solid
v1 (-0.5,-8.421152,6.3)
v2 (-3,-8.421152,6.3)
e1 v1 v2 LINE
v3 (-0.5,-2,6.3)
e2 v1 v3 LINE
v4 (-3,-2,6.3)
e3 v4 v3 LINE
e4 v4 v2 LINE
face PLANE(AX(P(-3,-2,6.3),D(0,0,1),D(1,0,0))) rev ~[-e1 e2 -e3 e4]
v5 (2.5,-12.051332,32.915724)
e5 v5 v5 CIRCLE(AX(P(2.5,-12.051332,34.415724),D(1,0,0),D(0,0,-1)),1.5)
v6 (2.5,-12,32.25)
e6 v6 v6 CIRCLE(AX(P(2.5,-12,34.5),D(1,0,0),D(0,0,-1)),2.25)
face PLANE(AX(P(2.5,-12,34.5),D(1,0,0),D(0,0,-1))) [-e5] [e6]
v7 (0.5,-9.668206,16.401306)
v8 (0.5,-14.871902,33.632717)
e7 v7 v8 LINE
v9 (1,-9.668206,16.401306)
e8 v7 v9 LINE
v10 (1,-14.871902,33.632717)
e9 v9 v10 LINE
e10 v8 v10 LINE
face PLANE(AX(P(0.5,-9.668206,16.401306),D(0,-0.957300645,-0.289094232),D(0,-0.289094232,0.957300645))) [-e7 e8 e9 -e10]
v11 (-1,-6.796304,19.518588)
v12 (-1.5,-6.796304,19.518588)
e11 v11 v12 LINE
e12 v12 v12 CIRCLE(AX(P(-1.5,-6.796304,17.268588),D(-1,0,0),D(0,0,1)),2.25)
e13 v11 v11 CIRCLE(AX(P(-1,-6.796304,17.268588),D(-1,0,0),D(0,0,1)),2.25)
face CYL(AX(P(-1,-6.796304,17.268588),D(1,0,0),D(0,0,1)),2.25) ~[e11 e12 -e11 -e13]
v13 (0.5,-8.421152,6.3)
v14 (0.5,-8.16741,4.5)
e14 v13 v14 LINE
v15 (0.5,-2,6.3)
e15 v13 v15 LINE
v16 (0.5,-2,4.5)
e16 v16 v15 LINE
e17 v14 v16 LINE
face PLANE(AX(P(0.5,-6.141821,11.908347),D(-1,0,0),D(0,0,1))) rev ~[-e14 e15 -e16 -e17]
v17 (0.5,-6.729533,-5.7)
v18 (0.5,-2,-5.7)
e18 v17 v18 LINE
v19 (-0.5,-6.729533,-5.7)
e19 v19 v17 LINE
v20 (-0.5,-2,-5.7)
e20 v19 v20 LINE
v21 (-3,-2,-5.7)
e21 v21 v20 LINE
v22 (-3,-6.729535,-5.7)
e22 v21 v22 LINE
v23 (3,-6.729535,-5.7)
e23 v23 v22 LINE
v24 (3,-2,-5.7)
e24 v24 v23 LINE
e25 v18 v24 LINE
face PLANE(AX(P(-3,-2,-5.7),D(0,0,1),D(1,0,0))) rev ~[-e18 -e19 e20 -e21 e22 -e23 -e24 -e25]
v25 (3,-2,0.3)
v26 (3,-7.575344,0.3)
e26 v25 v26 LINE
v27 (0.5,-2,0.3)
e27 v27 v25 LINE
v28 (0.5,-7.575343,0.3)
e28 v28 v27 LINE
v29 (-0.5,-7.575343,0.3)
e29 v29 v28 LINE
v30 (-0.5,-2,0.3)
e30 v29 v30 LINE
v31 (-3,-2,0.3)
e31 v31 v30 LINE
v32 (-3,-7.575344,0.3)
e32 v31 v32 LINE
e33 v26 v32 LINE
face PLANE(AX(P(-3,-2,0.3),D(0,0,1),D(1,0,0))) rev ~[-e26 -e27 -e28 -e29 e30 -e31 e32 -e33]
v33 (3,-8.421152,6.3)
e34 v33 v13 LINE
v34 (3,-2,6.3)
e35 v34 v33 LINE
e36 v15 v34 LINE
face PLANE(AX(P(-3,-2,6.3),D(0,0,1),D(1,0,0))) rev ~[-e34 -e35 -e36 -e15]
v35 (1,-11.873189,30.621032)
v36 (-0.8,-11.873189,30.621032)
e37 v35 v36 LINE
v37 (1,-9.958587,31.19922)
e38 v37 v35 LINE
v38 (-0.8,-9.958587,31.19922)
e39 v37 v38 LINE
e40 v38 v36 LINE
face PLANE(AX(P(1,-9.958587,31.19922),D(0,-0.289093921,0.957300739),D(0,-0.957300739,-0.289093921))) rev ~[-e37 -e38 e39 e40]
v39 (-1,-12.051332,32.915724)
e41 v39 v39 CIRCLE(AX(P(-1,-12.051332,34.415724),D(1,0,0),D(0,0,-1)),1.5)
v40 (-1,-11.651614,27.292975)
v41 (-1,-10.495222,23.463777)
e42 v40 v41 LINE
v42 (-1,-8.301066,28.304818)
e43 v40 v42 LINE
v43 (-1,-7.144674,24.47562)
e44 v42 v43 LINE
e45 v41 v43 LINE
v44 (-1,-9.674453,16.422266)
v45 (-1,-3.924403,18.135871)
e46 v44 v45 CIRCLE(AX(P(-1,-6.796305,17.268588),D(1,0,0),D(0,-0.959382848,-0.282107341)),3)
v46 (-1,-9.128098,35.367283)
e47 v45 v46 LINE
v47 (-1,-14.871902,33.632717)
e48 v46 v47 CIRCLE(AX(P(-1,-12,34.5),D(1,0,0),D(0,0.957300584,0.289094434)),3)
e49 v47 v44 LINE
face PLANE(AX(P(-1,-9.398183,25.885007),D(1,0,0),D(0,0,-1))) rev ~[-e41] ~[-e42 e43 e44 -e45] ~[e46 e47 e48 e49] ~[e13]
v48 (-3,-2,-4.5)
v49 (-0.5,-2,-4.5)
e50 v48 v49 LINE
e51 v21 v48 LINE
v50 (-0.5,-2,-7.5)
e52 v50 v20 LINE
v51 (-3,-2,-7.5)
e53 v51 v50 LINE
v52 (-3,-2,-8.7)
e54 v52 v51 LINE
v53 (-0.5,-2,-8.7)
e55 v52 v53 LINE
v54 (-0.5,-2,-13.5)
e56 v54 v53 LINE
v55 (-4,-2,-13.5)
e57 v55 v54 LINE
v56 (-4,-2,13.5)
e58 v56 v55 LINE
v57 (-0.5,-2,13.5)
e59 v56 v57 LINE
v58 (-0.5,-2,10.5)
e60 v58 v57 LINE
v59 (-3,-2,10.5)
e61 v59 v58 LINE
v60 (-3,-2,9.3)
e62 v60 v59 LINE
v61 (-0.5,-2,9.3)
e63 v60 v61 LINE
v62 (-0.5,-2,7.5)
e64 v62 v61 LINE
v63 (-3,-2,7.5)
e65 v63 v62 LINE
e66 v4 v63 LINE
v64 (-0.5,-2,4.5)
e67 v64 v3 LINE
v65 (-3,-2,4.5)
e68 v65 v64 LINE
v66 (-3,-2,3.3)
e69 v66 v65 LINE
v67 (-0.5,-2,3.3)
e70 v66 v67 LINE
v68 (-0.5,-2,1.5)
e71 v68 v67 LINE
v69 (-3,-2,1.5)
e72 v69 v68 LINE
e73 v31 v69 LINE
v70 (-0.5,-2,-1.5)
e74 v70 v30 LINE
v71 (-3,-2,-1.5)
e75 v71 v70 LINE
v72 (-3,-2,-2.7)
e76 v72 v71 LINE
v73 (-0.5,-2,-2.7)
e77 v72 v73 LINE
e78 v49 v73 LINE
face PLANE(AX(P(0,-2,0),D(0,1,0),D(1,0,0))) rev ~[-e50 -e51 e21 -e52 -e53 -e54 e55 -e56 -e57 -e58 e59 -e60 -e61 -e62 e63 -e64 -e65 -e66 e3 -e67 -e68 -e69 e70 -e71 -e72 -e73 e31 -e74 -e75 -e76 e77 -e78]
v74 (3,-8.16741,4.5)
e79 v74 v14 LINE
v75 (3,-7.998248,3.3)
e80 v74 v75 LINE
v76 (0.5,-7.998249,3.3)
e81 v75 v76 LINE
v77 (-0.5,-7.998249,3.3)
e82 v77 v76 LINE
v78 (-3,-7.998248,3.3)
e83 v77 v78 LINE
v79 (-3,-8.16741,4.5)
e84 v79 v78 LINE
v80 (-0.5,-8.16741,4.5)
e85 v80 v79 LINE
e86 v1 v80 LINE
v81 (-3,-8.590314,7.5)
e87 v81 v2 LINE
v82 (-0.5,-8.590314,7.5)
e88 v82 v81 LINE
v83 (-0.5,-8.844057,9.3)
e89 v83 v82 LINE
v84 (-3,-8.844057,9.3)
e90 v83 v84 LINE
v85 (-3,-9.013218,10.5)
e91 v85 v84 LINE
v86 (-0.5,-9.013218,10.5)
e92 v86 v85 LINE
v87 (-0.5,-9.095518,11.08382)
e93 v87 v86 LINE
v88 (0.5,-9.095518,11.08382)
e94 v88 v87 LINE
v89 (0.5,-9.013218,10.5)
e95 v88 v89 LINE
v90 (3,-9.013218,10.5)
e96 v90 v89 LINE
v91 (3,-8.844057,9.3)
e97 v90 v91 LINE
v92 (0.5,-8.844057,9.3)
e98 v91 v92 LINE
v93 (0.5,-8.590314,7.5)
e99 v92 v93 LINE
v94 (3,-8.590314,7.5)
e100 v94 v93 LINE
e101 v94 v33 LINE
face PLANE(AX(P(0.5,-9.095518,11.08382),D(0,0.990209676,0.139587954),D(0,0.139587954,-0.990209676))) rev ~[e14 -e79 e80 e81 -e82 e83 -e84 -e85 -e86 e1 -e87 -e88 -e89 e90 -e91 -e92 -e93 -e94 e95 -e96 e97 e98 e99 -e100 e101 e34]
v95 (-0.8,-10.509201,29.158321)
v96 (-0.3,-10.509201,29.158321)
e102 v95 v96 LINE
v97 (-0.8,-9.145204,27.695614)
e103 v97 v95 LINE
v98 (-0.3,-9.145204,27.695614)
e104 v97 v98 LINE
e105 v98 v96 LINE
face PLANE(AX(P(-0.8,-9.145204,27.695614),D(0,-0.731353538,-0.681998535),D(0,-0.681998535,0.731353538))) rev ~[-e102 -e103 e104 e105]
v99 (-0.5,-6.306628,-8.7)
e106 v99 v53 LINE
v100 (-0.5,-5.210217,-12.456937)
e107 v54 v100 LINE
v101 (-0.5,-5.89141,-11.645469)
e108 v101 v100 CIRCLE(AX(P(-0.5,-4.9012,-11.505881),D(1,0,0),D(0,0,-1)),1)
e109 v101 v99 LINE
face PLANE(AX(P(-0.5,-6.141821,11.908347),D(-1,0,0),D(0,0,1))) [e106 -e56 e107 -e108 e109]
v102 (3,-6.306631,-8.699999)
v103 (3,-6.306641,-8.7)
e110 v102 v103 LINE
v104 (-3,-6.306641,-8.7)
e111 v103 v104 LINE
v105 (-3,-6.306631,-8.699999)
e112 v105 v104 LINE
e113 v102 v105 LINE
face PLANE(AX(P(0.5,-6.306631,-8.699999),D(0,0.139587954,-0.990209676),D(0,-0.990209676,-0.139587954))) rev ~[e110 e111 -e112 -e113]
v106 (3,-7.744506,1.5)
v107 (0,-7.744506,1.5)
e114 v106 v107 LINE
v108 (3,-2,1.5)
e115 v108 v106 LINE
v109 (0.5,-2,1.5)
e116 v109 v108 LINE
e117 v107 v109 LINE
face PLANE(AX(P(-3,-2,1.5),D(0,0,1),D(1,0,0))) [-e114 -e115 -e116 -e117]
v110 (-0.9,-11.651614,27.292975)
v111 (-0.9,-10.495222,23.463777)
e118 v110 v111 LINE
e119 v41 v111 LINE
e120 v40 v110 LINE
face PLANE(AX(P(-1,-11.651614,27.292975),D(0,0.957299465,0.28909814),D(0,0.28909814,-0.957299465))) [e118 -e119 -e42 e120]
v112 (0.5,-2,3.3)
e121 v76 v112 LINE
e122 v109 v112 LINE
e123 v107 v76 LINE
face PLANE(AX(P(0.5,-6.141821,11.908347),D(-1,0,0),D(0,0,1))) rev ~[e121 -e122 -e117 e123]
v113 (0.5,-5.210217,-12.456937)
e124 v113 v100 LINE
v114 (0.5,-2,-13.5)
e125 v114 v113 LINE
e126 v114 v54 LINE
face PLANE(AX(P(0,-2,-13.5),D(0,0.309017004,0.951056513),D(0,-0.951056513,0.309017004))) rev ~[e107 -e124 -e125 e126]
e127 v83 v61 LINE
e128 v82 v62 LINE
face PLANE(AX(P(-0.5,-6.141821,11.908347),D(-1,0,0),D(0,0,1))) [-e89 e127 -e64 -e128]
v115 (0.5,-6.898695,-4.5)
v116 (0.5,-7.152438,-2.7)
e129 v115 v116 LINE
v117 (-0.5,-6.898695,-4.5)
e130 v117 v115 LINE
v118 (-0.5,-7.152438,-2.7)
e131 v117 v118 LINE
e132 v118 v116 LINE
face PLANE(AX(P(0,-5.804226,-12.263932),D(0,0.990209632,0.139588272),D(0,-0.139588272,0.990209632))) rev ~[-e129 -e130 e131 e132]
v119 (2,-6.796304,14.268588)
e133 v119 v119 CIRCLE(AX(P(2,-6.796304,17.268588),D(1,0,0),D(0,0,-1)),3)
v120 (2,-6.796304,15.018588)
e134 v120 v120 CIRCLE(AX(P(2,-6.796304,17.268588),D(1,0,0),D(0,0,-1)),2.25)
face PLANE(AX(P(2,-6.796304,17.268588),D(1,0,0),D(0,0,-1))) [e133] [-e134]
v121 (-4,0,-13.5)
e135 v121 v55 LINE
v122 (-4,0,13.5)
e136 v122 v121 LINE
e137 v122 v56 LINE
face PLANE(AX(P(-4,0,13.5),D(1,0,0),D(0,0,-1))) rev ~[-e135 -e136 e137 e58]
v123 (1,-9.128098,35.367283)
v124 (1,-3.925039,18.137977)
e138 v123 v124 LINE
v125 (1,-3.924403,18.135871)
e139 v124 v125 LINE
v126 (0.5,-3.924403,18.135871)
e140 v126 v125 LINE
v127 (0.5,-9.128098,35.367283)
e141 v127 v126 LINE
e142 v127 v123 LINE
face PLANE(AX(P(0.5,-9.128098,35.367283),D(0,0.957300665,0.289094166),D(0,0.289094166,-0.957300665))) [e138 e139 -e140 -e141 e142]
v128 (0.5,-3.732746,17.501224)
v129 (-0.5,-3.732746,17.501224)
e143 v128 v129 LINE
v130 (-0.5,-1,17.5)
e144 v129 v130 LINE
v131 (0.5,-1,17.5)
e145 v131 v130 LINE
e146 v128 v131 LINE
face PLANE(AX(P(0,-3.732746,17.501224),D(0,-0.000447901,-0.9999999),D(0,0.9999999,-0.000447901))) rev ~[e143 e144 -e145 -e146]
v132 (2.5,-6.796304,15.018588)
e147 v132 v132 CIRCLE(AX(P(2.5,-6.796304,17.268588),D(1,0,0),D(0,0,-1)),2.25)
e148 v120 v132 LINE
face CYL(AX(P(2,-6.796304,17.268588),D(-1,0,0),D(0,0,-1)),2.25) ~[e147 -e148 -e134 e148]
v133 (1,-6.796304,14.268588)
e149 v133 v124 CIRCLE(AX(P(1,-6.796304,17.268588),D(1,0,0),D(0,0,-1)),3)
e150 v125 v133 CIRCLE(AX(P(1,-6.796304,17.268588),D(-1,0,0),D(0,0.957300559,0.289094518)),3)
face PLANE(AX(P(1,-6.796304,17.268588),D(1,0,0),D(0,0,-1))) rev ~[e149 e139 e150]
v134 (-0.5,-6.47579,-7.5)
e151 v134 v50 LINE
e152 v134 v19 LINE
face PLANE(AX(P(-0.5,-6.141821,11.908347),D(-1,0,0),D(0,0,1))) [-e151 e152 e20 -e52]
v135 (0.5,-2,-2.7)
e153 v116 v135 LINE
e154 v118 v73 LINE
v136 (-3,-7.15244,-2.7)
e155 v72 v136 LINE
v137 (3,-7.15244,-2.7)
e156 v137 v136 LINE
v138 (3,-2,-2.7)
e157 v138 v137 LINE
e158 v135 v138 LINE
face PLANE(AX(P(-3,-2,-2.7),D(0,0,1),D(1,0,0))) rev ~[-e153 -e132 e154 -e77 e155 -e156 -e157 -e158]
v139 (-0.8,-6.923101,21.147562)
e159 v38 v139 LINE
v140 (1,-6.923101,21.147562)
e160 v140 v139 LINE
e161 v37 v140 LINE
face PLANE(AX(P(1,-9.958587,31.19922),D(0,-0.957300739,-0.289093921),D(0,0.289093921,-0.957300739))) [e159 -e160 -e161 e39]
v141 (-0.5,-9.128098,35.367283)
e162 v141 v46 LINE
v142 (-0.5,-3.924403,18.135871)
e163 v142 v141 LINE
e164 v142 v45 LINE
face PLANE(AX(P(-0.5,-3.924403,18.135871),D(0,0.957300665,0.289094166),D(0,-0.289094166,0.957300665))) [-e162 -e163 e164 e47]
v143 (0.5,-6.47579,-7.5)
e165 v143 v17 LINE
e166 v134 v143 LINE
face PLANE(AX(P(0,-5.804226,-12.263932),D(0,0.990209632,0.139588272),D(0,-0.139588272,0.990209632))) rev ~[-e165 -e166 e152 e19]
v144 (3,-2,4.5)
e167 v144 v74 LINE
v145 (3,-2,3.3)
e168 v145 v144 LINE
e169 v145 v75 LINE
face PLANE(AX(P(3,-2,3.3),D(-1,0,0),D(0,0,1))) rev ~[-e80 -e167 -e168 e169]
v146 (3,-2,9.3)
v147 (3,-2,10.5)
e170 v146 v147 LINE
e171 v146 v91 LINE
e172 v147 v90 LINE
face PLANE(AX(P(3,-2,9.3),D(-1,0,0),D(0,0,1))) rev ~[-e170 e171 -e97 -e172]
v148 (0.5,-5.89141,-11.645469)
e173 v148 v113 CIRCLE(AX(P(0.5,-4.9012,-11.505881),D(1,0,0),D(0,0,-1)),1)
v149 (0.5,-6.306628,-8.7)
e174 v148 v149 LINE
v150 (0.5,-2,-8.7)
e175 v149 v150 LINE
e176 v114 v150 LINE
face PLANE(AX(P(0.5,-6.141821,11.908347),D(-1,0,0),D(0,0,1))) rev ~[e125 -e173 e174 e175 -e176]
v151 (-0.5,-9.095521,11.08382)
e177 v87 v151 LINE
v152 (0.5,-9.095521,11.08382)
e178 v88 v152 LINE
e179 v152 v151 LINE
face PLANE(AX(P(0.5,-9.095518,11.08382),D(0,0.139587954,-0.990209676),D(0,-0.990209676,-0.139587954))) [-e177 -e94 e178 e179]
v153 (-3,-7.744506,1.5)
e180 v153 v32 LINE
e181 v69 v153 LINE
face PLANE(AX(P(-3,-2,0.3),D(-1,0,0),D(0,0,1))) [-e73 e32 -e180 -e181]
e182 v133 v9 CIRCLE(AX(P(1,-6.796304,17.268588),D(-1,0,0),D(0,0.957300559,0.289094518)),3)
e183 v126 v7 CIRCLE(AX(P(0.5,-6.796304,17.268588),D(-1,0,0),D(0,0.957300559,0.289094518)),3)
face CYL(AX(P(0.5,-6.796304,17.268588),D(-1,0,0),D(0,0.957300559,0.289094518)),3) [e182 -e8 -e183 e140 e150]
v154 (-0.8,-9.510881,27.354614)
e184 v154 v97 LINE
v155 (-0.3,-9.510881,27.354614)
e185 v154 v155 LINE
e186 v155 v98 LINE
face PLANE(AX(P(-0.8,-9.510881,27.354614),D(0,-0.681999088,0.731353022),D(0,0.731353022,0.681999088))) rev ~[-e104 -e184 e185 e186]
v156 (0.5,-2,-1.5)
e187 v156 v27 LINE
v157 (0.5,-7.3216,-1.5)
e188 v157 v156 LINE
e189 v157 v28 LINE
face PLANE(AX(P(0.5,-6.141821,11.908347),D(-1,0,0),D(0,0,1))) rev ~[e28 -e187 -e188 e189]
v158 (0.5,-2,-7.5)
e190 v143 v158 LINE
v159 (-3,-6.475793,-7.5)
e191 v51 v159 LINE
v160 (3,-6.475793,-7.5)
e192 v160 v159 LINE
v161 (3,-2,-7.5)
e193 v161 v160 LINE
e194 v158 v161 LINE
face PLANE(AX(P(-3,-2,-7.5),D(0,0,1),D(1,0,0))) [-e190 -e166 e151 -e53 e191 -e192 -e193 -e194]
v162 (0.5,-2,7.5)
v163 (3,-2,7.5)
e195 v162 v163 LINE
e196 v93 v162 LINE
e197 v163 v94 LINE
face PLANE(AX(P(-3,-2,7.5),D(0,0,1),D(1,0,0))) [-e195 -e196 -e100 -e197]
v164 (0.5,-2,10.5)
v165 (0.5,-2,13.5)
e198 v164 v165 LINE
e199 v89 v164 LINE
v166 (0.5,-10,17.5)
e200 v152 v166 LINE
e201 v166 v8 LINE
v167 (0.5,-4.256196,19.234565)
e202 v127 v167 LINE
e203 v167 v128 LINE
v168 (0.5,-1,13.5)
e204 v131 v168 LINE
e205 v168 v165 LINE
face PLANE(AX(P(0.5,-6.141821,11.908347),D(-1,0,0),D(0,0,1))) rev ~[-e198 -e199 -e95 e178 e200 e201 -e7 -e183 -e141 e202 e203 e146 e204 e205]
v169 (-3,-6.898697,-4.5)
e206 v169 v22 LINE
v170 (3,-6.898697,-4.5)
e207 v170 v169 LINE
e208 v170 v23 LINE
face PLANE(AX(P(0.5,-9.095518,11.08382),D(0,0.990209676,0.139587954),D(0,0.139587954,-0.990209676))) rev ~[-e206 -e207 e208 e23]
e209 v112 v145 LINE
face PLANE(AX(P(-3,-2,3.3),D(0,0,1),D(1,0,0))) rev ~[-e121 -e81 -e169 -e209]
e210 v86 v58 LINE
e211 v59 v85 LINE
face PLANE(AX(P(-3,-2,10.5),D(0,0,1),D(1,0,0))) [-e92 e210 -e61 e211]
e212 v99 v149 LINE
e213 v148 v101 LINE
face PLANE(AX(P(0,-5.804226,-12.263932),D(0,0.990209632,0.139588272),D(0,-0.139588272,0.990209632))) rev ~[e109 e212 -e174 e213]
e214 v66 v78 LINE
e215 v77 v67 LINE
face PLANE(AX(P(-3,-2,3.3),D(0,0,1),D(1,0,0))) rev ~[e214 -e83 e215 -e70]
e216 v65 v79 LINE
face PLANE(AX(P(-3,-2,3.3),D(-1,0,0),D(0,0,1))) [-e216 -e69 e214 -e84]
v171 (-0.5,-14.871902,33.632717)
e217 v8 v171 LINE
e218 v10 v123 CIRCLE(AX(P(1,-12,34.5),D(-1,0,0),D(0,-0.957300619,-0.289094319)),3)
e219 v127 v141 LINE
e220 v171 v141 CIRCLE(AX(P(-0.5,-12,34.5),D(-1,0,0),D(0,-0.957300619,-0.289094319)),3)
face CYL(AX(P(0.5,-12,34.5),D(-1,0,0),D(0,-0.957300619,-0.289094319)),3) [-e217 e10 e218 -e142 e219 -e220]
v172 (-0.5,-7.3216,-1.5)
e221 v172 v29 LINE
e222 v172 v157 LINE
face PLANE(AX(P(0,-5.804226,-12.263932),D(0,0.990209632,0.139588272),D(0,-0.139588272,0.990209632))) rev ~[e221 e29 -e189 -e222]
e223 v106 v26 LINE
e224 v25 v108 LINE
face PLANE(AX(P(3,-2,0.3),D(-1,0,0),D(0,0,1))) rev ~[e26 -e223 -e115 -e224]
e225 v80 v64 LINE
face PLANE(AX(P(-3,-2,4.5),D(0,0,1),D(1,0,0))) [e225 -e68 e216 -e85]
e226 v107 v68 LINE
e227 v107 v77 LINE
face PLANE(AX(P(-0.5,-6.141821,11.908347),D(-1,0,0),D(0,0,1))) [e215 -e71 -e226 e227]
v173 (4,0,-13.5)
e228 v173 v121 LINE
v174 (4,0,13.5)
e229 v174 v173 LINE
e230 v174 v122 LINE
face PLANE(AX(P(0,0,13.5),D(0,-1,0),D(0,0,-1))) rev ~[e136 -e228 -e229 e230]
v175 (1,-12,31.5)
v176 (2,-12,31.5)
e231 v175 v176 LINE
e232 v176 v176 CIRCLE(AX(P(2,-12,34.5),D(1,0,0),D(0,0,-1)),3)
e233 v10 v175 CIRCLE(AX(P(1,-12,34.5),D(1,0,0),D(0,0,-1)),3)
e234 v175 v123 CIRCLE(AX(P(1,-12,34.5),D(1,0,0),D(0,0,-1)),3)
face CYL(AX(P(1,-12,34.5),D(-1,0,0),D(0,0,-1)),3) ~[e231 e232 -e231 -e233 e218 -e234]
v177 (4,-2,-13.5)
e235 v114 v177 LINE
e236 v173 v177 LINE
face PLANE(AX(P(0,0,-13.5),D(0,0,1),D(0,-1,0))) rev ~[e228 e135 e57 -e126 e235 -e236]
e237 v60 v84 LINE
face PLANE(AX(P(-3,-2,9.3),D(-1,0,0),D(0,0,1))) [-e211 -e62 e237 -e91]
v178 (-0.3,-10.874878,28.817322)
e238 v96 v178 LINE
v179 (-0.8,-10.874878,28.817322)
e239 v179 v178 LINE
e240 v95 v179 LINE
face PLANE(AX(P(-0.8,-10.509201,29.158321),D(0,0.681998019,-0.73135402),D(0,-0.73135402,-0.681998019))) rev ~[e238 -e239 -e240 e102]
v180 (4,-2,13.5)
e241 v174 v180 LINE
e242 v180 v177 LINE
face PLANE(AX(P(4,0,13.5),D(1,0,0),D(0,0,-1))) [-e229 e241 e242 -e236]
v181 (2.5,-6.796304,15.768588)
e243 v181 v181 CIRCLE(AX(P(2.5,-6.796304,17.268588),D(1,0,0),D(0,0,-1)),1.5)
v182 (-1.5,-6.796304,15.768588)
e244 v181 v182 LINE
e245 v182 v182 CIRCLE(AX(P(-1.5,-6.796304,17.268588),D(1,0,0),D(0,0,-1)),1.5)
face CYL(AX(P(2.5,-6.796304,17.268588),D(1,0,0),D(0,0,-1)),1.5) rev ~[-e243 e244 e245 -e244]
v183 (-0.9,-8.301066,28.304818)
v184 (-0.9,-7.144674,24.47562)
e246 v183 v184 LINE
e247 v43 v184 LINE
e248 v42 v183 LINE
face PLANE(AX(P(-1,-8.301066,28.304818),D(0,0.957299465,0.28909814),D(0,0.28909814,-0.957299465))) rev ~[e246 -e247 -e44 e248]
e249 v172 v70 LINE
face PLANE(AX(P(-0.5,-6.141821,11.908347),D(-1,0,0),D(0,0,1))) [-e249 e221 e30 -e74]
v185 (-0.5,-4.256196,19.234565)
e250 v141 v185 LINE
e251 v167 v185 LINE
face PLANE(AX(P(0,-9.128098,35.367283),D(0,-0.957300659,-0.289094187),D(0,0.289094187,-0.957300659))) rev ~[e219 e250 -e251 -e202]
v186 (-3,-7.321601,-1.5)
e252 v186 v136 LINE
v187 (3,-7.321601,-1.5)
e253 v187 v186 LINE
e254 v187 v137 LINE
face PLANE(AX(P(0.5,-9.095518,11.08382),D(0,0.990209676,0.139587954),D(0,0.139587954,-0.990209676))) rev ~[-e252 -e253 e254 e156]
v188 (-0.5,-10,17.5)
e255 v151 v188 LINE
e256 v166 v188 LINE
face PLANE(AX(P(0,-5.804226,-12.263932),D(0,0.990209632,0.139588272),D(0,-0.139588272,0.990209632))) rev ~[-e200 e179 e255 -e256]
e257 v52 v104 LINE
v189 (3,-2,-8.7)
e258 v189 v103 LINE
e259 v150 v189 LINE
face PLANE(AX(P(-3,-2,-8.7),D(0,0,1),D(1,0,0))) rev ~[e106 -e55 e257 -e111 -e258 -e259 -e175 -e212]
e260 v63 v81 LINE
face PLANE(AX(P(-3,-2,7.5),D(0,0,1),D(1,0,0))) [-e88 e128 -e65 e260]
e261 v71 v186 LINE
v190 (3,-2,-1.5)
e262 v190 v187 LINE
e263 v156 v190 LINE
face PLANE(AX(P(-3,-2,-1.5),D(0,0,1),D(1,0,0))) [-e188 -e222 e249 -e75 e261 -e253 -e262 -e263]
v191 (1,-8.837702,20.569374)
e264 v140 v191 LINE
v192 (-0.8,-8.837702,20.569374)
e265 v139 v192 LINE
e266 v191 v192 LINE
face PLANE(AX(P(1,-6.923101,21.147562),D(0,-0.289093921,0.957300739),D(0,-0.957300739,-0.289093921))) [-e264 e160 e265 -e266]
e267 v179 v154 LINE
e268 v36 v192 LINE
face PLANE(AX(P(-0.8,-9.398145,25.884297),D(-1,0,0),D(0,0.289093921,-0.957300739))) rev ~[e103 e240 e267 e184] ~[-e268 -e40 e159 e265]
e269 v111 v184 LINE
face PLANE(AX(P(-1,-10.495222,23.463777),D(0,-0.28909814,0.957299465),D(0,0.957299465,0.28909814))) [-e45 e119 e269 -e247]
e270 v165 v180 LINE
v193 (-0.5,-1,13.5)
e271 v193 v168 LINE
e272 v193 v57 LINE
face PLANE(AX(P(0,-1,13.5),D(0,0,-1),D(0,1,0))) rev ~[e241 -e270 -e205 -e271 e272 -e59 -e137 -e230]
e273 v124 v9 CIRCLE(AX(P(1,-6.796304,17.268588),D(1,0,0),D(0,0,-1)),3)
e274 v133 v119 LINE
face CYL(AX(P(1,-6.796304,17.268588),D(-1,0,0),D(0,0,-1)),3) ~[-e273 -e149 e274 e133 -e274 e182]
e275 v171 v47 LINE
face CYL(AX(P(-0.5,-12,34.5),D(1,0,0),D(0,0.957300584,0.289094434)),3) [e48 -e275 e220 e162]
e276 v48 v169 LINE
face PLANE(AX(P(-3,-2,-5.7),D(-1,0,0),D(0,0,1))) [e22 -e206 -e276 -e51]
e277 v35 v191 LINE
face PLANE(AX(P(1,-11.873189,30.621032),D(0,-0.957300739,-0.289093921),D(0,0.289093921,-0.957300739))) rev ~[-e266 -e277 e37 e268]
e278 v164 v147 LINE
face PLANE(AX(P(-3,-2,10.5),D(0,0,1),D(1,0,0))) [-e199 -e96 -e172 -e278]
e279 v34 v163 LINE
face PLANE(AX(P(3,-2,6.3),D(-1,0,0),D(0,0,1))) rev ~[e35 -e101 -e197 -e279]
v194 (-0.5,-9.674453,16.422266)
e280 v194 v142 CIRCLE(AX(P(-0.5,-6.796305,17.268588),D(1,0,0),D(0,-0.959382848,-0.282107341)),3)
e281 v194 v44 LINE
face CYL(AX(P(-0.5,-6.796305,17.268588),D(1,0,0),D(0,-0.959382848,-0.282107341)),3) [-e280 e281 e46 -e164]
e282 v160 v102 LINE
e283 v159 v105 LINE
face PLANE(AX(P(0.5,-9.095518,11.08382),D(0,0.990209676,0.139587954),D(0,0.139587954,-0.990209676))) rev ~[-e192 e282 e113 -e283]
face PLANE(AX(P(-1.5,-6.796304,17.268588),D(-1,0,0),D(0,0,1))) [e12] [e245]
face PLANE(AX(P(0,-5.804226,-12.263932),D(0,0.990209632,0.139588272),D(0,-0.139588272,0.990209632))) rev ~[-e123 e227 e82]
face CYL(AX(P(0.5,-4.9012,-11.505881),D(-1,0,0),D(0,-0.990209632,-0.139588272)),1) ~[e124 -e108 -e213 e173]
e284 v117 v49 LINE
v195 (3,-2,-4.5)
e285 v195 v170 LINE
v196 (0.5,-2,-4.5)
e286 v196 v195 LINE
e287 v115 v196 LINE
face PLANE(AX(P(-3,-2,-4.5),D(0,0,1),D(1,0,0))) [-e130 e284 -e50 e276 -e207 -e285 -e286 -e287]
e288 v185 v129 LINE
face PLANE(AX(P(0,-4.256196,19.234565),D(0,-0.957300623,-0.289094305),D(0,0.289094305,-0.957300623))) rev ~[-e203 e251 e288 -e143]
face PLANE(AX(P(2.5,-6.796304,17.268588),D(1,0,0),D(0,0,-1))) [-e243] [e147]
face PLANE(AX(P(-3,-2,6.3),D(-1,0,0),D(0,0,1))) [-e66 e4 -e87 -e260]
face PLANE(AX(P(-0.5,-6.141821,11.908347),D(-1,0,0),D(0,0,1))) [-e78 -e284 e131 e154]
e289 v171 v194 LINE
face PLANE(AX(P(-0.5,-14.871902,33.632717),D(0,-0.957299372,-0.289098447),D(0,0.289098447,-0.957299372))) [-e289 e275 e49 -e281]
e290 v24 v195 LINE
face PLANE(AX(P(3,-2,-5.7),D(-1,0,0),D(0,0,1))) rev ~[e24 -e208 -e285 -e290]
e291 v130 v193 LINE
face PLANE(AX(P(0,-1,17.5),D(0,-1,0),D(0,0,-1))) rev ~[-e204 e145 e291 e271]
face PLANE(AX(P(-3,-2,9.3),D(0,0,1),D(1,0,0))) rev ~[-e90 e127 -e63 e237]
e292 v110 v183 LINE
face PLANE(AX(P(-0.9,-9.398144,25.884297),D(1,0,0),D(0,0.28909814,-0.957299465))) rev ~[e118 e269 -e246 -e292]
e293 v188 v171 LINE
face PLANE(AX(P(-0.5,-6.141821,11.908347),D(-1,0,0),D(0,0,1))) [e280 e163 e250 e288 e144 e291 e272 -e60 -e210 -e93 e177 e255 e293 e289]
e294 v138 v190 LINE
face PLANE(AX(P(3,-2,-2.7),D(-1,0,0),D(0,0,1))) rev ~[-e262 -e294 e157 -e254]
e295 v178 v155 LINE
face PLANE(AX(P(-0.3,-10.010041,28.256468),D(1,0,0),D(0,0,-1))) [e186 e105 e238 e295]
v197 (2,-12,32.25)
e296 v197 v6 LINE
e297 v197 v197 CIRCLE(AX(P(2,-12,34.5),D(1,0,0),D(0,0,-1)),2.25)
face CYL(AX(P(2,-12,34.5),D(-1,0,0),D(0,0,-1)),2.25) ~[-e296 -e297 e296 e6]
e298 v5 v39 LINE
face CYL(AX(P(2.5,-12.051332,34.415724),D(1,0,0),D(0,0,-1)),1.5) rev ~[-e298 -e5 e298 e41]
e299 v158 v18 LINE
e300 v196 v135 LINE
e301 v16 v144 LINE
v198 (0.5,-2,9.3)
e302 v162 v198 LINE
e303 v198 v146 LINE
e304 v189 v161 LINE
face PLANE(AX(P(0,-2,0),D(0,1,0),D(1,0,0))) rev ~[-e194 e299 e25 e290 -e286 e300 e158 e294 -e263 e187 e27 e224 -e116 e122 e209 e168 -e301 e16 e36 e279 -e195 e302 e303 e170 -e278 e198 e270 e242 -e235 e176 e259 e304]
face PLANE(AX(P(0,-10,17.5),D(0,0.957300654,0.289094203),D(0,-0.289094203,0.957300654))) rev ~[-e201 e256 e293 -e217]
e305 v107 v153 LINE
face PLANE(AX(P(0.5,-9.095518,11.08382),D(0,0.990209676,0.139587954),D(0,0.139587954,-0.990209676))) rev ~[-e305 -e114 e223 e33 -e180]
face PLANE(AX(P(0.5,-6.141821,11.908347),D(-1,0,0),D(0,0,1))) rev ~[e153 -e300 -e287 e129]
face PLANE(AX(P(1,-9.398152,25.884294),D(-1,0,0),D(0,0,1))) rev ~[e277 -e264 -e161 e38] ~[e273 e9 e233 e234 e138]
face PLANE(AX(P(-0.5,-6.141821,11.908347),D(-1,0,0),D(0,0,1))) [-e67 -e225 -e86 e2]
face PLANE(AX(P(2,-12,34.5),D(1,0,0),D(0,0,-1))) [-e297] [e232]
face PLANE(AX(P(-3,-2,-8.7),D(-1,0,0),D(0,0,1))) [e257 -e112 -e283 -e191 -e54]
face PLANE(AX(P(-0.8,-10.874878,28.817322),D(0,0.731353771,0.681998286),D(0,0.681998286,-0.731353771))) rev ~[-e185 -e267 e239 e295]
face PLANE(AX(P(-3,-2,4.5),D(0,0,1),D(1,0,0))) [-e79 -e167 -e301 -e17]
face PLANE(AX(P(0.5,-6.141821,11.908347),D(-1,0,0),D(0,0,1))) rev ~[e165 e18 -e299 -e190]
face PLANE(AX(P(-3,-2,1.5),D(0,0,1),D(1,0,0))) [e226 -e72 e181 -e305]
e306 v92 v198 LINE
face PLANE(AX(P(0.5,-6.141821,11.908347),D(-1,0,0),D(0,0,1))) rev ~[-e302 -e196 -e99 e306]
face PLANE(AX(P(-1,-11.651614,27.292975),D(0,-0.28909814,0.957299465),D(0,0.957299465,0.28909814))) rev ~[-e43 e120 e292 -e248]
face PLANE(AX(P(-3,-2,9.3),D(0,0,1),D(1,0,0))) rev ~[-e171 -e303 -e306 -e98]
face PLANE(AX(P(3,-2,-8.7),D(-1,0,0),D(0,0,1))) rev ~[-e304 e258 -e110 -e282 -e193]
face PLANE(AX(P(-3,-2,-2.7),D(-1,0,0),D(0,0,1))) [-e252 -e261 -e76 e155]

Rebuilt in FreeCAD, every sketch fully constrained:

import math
import FreeCAD as App
import Part
import Sketcher
from FreeCAD import Vector
Q = App.Units.Quantity


def edges_at(feature, points):
    """Names of the edges that pass closest to the given points."""
    edges = feature.Shape.Edges
    near = lambda p: min(range(len(edges)), key=lambda i: edges[i].distToShape(Part.Vertex(*p))[0])
    return sorted({f"Edge{near(p) + 1}" for p in points})

doc = App.newDocument("Part")
body = doc.addObject("PartDesign::Body", "Body")

# Sketch on XZ plane
sketch1 = doc.addObject("Sketcher::SketchObject", "Sketch")
body.addObject(sketch1)
sketch1.AttachmentSupport = (doc.XZ_Plane, [""])
sketch1.MapMode = "FlatFace"
sketch1.addGeometry(Part.LineSegment(Vector(-4, -14, 0), Vector(-4, 14, 0)), False)
sketch1.addGeometry(Part.LineSegment(Vector(-4, 14, 0), Vector(4, 14, 0)), False)
sketch1.addGeometry(Part.LineSegment(Vector(4, 14, 0), Vector(4, -14, 0)), False)
sketch1.addGeometry(Part.LineSegment(Vector(4, -14, 0), Vector(-4, -14, 0)), False)
sketch1.addConstraint(Sketcher.Constraint("Coincident", 0, 2, 1, 1))
sketch1.addConstraint(Sketcher.Constraint("Coincident", 1, 2, 2, 1))
sketch1.addConstraint(Sketcher.Constraint("Coincident", 2, 2, 3, 1))
sketch1.addConstraint(Sketcher.Constraint("Coincident", 3, 2, 0, 1))
sketch1.addConstraint(Sketcher.Constraint("Vertical", 0))
sketch1.addConstraint(Sketcher.Constraint("Horizontal", 1))
sketch1.addConstraint(Sketcher.Constraint("Vertical", 2))
sketch1.addConstraint(Sketcher.Constraint("Horizontal", 3))
sketch1.addConstraint(Sketcher.Constraint("Symmetric", 0, 2, 2, 2, -1, 1))
sketch1.addConstraint(Sketcher.Constraint("DistanceX", 1, 1, 1, 2, 8.0))
sketch1.addConstraint(Sketcher.Constraint("DistanceY", 0, 1, 0, 2, 27.0))
pad1 = doc.addObject("PartDesign::Pad", "Pad")
body.addObject(pad1)
pad1.Profile = sketch1
pad1.Length = 2

# Sketch on YZ plane
sketch2 = doc.addObject("Sketcher::SketchObject", "Sketch001")
body.addObject(sketch2)
sketch2.AttachmentSupport = (doc.YZ_Plane, [""])
sketch2.MapMode = "FlatFace"
sketch2.addGeometry(Part.LineSegment(Vector(-2, -13.5, 0), Vector(0, -13.5, 0)), False)
sketch2.addGeometry(Part.LineSegment(Vector(0, -13.5, 0), Vector(0, 13.5, 0)), False)
sketch2.addGeometry(Part.LineSegment(Vector(0, 13.5, 0), Vector(-1, 13.5, 0)), False)
sketch2.addGeometry(Part.LineSegment(Vector(-1, 13.5, 0), Vector(-1, 17.5, 0)), False)
sketch2.addGeometry(Part.LineSegment(Vector(-1, 17.5, 0), Vector(-3.7, 17.5, 0)), False)
sketch2.addGeometry(Part.LineSegment(Vector(-3.7, 17.5, 0), Vector(-4.3, 19.2, 0)), False)
sketch2.addGeometry(Part.LineSegment(Vector(-4.3, 19.2, 0), Vector(-9.1, 35.4, 0)), False)
sketch2.addGeometry(Part.ArcOfCircle(Part.Circle(Vector(-12, 34.5, 0), Vector(0, 0, 1), 3), math.radians(17), math.radians(197)), False)
sketch2.addGeometry(Part.LineSegment(Vector(-14.9, 33.6, 0), Vector(-10, 17.5, 0)), False)
sketch2.addGeometry(Part.LineSegment(Vector(-10, 17.5, 0), Vector(-5.8, -12.3, 0)), False)
sketch2.addGeometry(Part.LineSegment(Vector(-5.8, -12.3, 0), Vector(-2, -13.5, 0)), False)
sketch2.addConstraint(Sketcher.Constraint("Coincident", 0, 2, 1, 1))
sketch2.addConstraint(Sketcher.Constraint("Coincident", 1, 2, 2, 1))
sketch2.addConstraint(Sketcher.Constraint("Coincident", 2, 2, 3, 1))
sketch2.addConstraint(Sketcher.Constraint("Coincident", 3, 2, 4, 1))
sketch2.addConstraint(Sketcher.Constraint("Coincident", 4, 2, 5, 1))
sketch2.addConstraint(Sketcher.Constraint("Coincident", 5, 2, 6, 1))
sketch2.addConstraint(Sketcher.Constraint("Tangent", 6, 2, 7, 1))
sketch2.addConstraint(Sketcher.Constraint("Tangent", 7, 2, 8, 1))
sketch2.addConstraint(Sketcher.Constraint("Coincident", 8, 2, 9, 1))
sketch2.addConstraint(Sketcher.Constraint("Coincident", 9, 2, 10, 1))
sketch2.addConstraint(Sketcher.Constraint("Coincident", 10, 2, 0, 1))
sketch2.addConstraint(Sketcher.Constraint("Horizontal", 0))
sketch2.addConstraint(Sketcher.Constraint("Vertical", 1))
sketch2.addConstraint(Sketcher.Constraint("Horizontal", 2))
sketch2.addConstraint(Sketcher.Constraint("Vertical", 3))
sketch2.addConstraint(Sketcher.Constraint("Symmetric", 0, 2, 1, 2, -1, 1))
sketch2.addConstraint(Sketcher.Constraint("Parallel", 5, 6))
sketch2.addConstraint(Sketcher.Constraint("Parallel", 6, 8))
sketch2.addConstraint(Sketcher.Constraint("Horizontal", 3, 2, 8, 2))
sketch2.addConstraint(Sketcher.Constraint("Equal", 6, 8))
sketch2.addConstraint(Sketcher.Constraint("Radius", 7, 3.0))
sketch2.addConstraint(Sketcher.Constraint("DistanceX", 0, 1, 0, 2, 2.0))
sketch2.addConstraint(Sketcher.Constraint("DistanceX", 2, 2, 2, 1, 1.0))
sketch2.addConstraint(Sketcher.Constraint("DistanceY", 1, 1, 1, 2, 27.0))
sketch2.addConstraint(Sketcher.Constraint("DistanceY", 3, 1, 3, 2, 4.0))
sketch2.addConstraint(Sketcher.Constraint("Angle", 10, Q("-18.000001 deg")))
sketch2.addConstraint(Sketcher.Constraint("Distance", 10, 4.0))
sketch2.addConstraint(Sketcher.Constraint("DistanceX", 7, 3, -1, 1, 12.0))
sketch2.addConstraint(Sketcher.Constraint("DistanceX", 8, 2, -1, 1, 10.0))
sketch2.addConstraint(Sketcher.Constraint("DistanceY", 0, 2, 7, 3, 48.0))
sketch2.addConstraint(Sketcher.Constraint("DistanceX", 5, 2, 4, 2, 0.52345))
pad2 = doc.addObject("PartDesign::Pad", "Pad001")
body.addObject(pad2)
pad2.Profile = sketch2
pad2.Length = 1
pad2.Midplane = True

# Sketch on YZ plane
sketch3 = doc.addObject("Sketcher::SketchObject", "Sketch002")
body.addObject(sketch3)
sketch3.AttachmentSupport = (doc.YZ_Plane, [""])
sketch3.MapMode = "FlatFace"
sketch3.AttachmentOffset = App.Placement(Vector(0, 0, -0.5), App.Rotation())
sketch3.addGeometry(Part.LineSegment(Vector(-9.7, 16.4, 0), Vector(-14.9, 33.6, 0)), False)
sketch3.addGeometry(Part.ArcOfCircle(Part.Circle(Vector(-12, 34.5, 0), Vector(0, 0, 1), 3), math.radians(17), math.radians(197)), False)
sketch3.addGeometry(Part.LineSegment(Vector(-9.1, 35.4, 0), Vector(-3.9, 18.1, 0)), False)
sketch3.addGeometry(Part.ArcOfCircle(Part.Circle(Vector(-6.8, 17.3, 0), Vector(0, 0, 1), 3), math.radians(-164), math.radians(17)), False)
sketch3.addConstraint(Sketcher.Constraint("Coincident", 0, 2, 1, 2))
sketch3.addConstraint(Sketcher.Constraint("Tangent", 1, 1, 2, 1))
sketch3.addConstraint(Sketcher.Constraint("Tangent", 2, 2, 3, 2))
sketch3.addConstraint(Sketcher.Constraint("Coincident", 3, 1, 0, 1))
sketch3.addConstraint(Sketcher.Constraint("Equal", 1, 3))
sketch3.addConstraint(Sketcher.Constraint("Radius", 1, 3.0))
sketch3.addConstraint(Sketcher.Constraint("Distance", 2, 18.0))
sketch3.addConstraint(Sketcher.Constraint("DistanceX", 1, 3, -1, 1, 12.0))
sketch3.addConstraint(Sketcher.Constraint("DistanceY", -1, 1, 1, 3, 34.5))
sketch3.addConstraint(Sketcher.Constraint("DistanceX", 1, 1, -1, 1, 9.128098))
sketch3.addConstraint(Sketcher.Constraint("DistanceX", 0, 2, 2, 2, 10.947499))
sketch3.addConstraint(Sketcher.Constraint("Distance", 0, 17.978128))
pad3 = doc.addObject("PartDesign::Pad", "Pad002")
body.addObject(pad3)
pad3.Profile = sketch3
pad3.Length = 0.5
pad3.Reversed = True

# Sketch on YZ plane
sketch4 = doc.addObject("Sketcher::SketchObject", "Sketch003")
body.addObject(sketch4)
sketch4.AttachmentSupport = (doc.YZ_Plane, [""])
sketch4.MapMode = "FlatFace"
sketch4.AttachmentOffset = App.Placement(Vector(0, 0, 0.5), App.Rotation())
sketch4.addGeometry(Part.LineSegment(Vector(-3.9, 18.1, 0), Vector(-9.1, 35.4, 0)), False)
sketch4.addGeometry(Part.ArcOfCircle(Part.Circle(Vector(-12, 34.5, 0), Vector(0, 0, 1), 3), math.radians(17), math.radians(197)), False)
sketch4.addGeometry(Part.LineSegment(Vector(-14.9, 33.6, 0), Vector(-9.7, 16.4, 0)), False)
sketch4.addGeometry(Part.ArcOfCircle(Part.Circle(Vector(-6.8, 17.3, 0), Vector(0, 0, 1), 3), math.radians(-163), math.radians(17)), False)
sketch4.addConstraint(Sketcher.Constraint("Tangent", 0, 2, 1, 1))
sketch4.addConstraint(Sketcher.Constraint("Tangent", 1, 2, 2, 1))
sketch4.addConstraint(Sketcher.Constraint("Tangent", 2, 2, 3, 1))
sketch4.addConstraint(Sketcher.Constraint("Tangent", 3, 2, 0, 1))
sketch4.addConstraint(Sketcher.Constraint("Equal", 1, 3))
sketch4.addConstraint(Sketcher.Constraint("Radius", 1, 3.0))
sketch4.addConstraint(Sketcher.Constraint("Distance", 0, 18.0))
sketch4.addConstraint(Sketcher.Constraint("DistanceX", 1, 3, -1, 1, 12.0))
sketch4.addConstraint(Sketcher.Constraint("DistanceY", -1, 1, 1, 3, 34.5))
sketch4.addConstraint(Sketcher.Constraint("DistanceX", 2, 2, 3, 3, 2.871902))
pad4 = doc.addObject("PartDesign::Pad", "Pad003")
body.addObject(pad4)
pad4.Profile = sketch4
pad4.Length = 0.5

# Sketch on YZ plane
sketch5 = doc.addObject("Sketcher::SketchObject", "Sketch004")
body.addObject(sketch5)
sketch5.AttachmentSupport = (doc.YZ_Plane, [""])
sketch5.MapMode = "FlatFace"
sketch5.AttachmentOffset = App.Placement(Vector(0, 0, -1), App.Rotation())
sketch5.addGeometry(Part.Circle(Vector(-6.8, 17.3, 0), Vector(0, 0, 1), 2.2), False)
sketch5.addConstraint(Sketcher.Constraint("Diameter", 0, 4.5))
sketch5.addConstraint(Sketcher.Constraint("DistanceY", -1, 1, 0, 3, 17.268588))
sketch5.addConstraint(Sketcher.Constraint("DistanceX", 0, 3, -1, 1, 6.796304))
pad5 = doc.addObject("PartDesign::Pad", "Pad004")
body.addObject(pad5)
pad5.Profile = sketch5
pad5.Length = 0.5
pad5.Reversed = True

# Sketch on YZ plane
sketch6 = doc.addObject("Sketcher::SketchObject", "Sketch005")
body.addObject(sketch6)
sketch6.AttachmentSupport = (doc.YZ_Plane, [""])
sketch6.MapMode = "FlatFace"
sketch6.AttachmentOffset = App.Placement(Vector(0, 0, 1), App.Rotation())
sketch6.addGeometry(Part.Circle(Vector(-12, 34.5, 0), Vector(0, 0, 1), 3), False)
sketch6.addGeometry(Part.Circle(Vector(-6.8, 17.3, 0), Vector(0, 0, 1), 3), False)
sketch6.addConstraint(Sketcher.Constraint("Equal", 0, 1))
sketch6.addConstraint(Sketcher.Constraint("Diameter", 0, 6.0))
sketch6.addConstraint(Sketcher.Constraint("DistanceX", 0, 3, -1, 1, 12.0))
sketch6.addConstraint(Sketcher.Constraint("DistanceY", -1, 1, 0, 3, 34.5))
sketch6.addConstraint(Sketcher.Constraint("DistanceY", -1, 1, 1, 3, 17.268588))
sketch6.addConstraint(Sketcher.Constraint("DistanceX", 1, 3, -1, 1, 6.796304))
pad6 = doc.addObject("PartDesign::Pad", "Pad005")
body.addObject(pad6)
pad6.Profile = sketch6
pad6.Length = 1

# Sketch on YZ plane
sketch7 = doc.addObject("Sketcher::SketchObject", "Sketch006")
body.addObject(sketch7)
sketch7.AttachmentSupport = (doc.YZ_Plane, [""])
sketch7.MapMode = "FlatFace"
sketch7.AttachmentOffset = App.Placement(Vector(0, 0, 2), App.Rotation())
sketch7.addGeometry(Part.Circle(Vector(-12, 34.5, 0), Vector(0, 0, 1), 2.2), False)
sketch7.addGeometry(Part.Circle(Vector(-6.8, 17.3, 0), Vector(0, 0, 1), 2.2), False)
sketch7.addConstraint(Sketcher.Constraint("Equal", 0, 1))
sketch7.addConstraint(Sketcher.Constraint("Diameter", 0, 4.5))
sketch7.addConstraint(Sketcher.Constraint("DistanceX", 0, 3, -1, 1, 12.0))
sketch7.addConstraint(Sketcher.Constraint("DistanceY", -1, 1, 0, 3, 34.5))
sketch7.addConstraint(Sketcher.Constraint("DistanceY", -1, 1, 1, 3, 17.268588))
sketch7.addConstraint(Sketcher.Constraint("DistanceX", 1, 3, -1, 1, 6.796304))
pad7 = doc.addObject("PartDesign::Pad", "Pad006")
body.addObject(pad7)
pad7.Profile = sketch7
pad7.Length = 0.5

# Sketch on YZ plane
sketch8 = doc.addObject("Sketcher::SketchObject", "Sketch007")
body.addObject(sketch8)
sketch8.AttachmentSupport = (doc.YZ_Plane, [""])
sketch8.MapMode = "FlatFace"
sketch8.AttachmentOffset = App.Placement(Vector(0, 0, 1), App.Rotation())
sketch8.addGeometry(Part.LineSegment(Vector(-11.9, 30.6, 0), Vector(-10, 31.2, 0)), False)
sketch8.addGeometry(Part.LineSegment(Vector(-10, 31.2, 0), Vector(-6.9, 21.1, 0)), False)
sketch8.addGeometry(Part.LineSegment(Vector(-6.9, 21.1, 0), Vector(-8.8, 20.6, 0)), False)
sketch8.addGeometry(Part.LineSegment(Vector(-8.8, 20.6, 0), Vector(-11.9, 30.6, 0)), False)
sketch8.addConstraint(Sketcher.Constraint("Coincident", 0, 2, 1, 1))
sketch8.addConstraint(Sketcher.Constraint("Coincident", 1, 2, 2, 1))
sketch8.addConstraint(Sketcher.Constraint("Coincident", 2, 2, 3, 1))
sketch8.addConstraint(Sketcher.Constraint("Coincident", 3, 2, 0, 1))
sketch8.addConstraint(Sketcher.Constraint("Perpendicular", 0, 1))
sketch8.addConstraint(Sketcher.Constraint("Perpendicular", 1, 2))
sketch8.addConstraint(Sketcher.Constraint("Perpendicular", 2, 3))
sketch8.addConstraint(Sketcher.Constraint("Distance", 0, 2.0))
sketch8.addConstraint(Sketcher.Constraint("Distance", 1, 10.5))
sketch8.addConstraint(Sketcher.Constraint("DistanceX", 1, 2, -1, 1, 6.923101))
sketch8.addConstraint(Sketcher.Constraint("DistanceX", 2, 2, 1, 2, 1.914601))
sketch8.addConstraint(Sketcher.Constraint("DistanceY", -1, 1, 0, 2, 31.19922))
pocket1 = doc.addObject("PartDesign::Pocket", "Pocket")
body.addObject(pocket1)
pocket1.Profile = sketch8
pocket1.Length = 1.8
doc.recompute()

fillet = doc.addObject("PartDesign::Fillet", "Fillet")
body.addObject(fillet)
fillet.Base = (pocket1, edges_at(pocket1, [(0, -5.804, -12.264)]))
fillet.Radius = 1

# Sketch on YZ plane
sketch9 = doc.addObject("Sketcher::SketchObject", "Sketch008")
body.addObject(sketch9)
sketch9.AttachmentSupport = (doc.YZ_Plane, [""])
sketch9.MapMode = "FlatFace"
sketch9.AttachmentOffset = App.Placement(Vector(0, 0, -1), App.Rotation())
sketch9.addGeometry(Part.LineSegment(Vector(-8.3, 28.3, 0), Vector(-11.7, 27.3, 0)), False)
sketch9.addGeometry(Part.LineSegment(Vector(-11.7, 27.3, 0), Vector(-10.5, 23.5, 0)), False)
sketch9.addGeometry(Part.LineSegment(Vector(-10.5, 23.5, 0), Vector(-7.1, 24.5, 0)), False)
sketch9.addGeometry(Part.LineSegment(Vector(-7.1, 24.5, 0), Vector(-8.3, 28.3, 0)), False)
sketch9.addConstraint(Sketcher.Constraint("Coincident", 0, 2, 1, 1))
sketch9.addConstraint(Sketcher.Constraint("Coincident", 1, 2, 2, 1))
sketch9.addConstraint(Sketcher.Constraint("Coincident", 2, 2, 3, 1))
sketch9.addConstraint(Sketcher.Constraint("Coincident", 3, 2, 0, 1))
sketch9.addConstraint(Sketcher.Constraint("Perpendicular", 0, 1))
sketch9.addConstraint(Sketcher.Constraint("Perpendicular", 1, 2))
sketch9.addConstraint(Sketcher.Constraint("Perpendicular", 2, 3))
sketch9.addConstraint(Sketcher.Constraint("Distance", 1, 4.0))
sketch9.addConstraint(Sketcher.Constraint("Distance", 0, 3.5))
sketch9.addConstraint(Sketcher.Constraint("DistanceX", 1, 2, -1, 1, 10.495222))
sketch9.addConstraint(Sketcher.Constraint("DistanceY", -1, 1, 2, 2, 24.47562))
sketch9.addConstraint(Sketcher.Constraint("DistanceY", -1, 1, 3, 2, 28.304818))
pocket2 = doc.addObject("PartDesign::Pocket", "Pocket001")
body.addObject(pocket2)
pocket2.Profile = sketch9
pocket2.Length = 0.1
pocket2.Reversed = True

# Sketch on XZ plane
sketch10 = doc.addObject("Sketcher::SketchObject", "Sketch009")
body.addObject(sketch10)
sketch10.AttachmentSupport = (doc.XZ_Plane, [""])
sketch10.MapMode = "FlatFace"
sketch10.AttachmentOffset = App.Placement(Vector(0, 0, 2), App.Rotation())
sketch10.addGeometry(Part.LineSegment(Vector(-3, 10.5, 0), Vector(-3, 9.3, 0)), False)
sketch10.addGeometry(Part.LineSegment(Vector(-3, 9.3, 0), Vector(3, 9.3, 0)), False)
sketch10.addGeometry(Part.LineSegment(Vector(3, 9.3, 0), Vector(3, 10.5, 0)), False)
sketch10.addGeometry(Part.LineSegment(Vector(3, 10.5, 0), Vector(-3, 10.5, 0)), False)
sketch10.addConstraint(Sketcher.Constraint("Coincident", 0, 2, 1, 1))
sketch10.addConstraint(Sketcher.Constraint("Coincident", 1, 2, 2, 1))
sketch10.addConstraint(Sketcher.Constraint("Coincident", 2, 2, 3, 1))
sketch10.addConstraint(Sketcher.Constraint("Coincident", 3, 2, 0, 1))
sketch10.addConstraint(Sketcher.Constraint("Vertical", 0))
sketch10.addConstraint(Sketcher.Constraint("Horizontal", 1))
sketch10.addConstraint(Sketcher.Constraint("Vertical", 2))
sketch10.addConstraint(Sketcher.Constraint("Horizontal", 3))
sketch10.addConstraint(Sketcher.Constraint("DistanceX", 1, 1, 1, 2, 6.0))
sketch10.addConstraint(Sketcher.Constraint("DistanceY", 0, 2, 0, 1, 1.2))
sketch10.addConstraint(Sketcher.Constraint("DistanceX", 0, 2, -1, 1, 3.0))
sketch10.addConstraint(Sketcher.Constraint("DistanceY", -1, 1, 0, 2, 9.3))
pad8 = doc.addObject("PartDesign::Pad", "Pad007")
body.addObject(pad8)
pad8.Profile = sketch10
pad8.Length = 7.1
doc.recompute()

linearpattern = doc.addObject("PartDesign::LinearPattern", "LinearPattern")
body.addObject(linearpattern)
linearpattern.Originals = [pad8]
linearpattern.Direction = (doc.Z_Axis, [""])
linearpattern.Mode = "offset"
linearpattern.Offset = 3
linearpattern.Occurrences = 7
linearpattern.Reversed = True
body.Tip = linearpattern

# Sketch on YZ plane
sketch11 = doc.addObject("Sketcher::SketchObject", "Sketch010")
body.addObject(sketch11)
sketch11.AttachmentSupport = (doc.YZ_Plane, [""])
sketch11.MapMode = "FlatFace"
sketch11.AttachmentOffset = App.Placement(Vector(0, 0, 0.5), App.Rotation())
sketch11.addGeometry(Part.LineSegment(Vector(-12.5, 10.6, 0), Vector(-9.1, 11.1, 0)), False)
sketch11.addGeometry(Part.LineSegment(Vector(-9.1, 11.1, 0), Vector(-6.3, -8.7, 0)), False)
sketch11.addGeometry(Part.LineSegment(Vector(-6.3, -8.7, 0), Vector(-9.7, -9.2, 0)), False)
sketch11.addGeometry(Part.LineSegment(Vector(-9.7, -9.2, 0), Vector(-12.5, 10.6, 0)), False)
sketch11.addConstraint(Sketcher.Constraint("Coincident", 0, 2, 1, 1))
sketch11.addConstraint(Sketcher.Constraint("Coincident", 1, 2, 2, 1))
sketch11.addConstraint(Sketcher.Constraint("Coincident", 2, 2, 3, 1))
sketch11.addConstraint(Sketcher.Constraint("Coincident", 3, 2, 0, 1))
sketch11.addConstraint(Sketcher.Constraint("Perpendicular", 0, 1))
sketch11.addConstraint(Sketcher.Constraint("Perpendicular", 1, 2))
sketch11.addConstraint(Sketcher.Constraint("Perpendicular", 2, 3))
sketch11.addConstraint(Sketcher.Constraint("DistanceY", 1, 2, -1, 1, 8.699999))
sketch11.addConstraint(Sketcher.Constraint("Distance", 0, 3.421259))
sketch11.addConstraint(Sketcher.Constraint("DistanceX", 0, 2, -1, 1, 9.095518))
sketch11.addConstraint(Sketcher.Constraint("DistanceY", -1, 1, 0, 2, 11.08382))
sketch11.addConstraint(Sketcher.Constraint("DistanceX", 1, 2, -1, 1, 6.306631))
pocket3 = doc.addObject("PartDesign::Pocket", "Pocket002")
body.addObject(pocket3)
pocket3.Profile = sketch11
pocket3.Length = 7.1
pocket3.Midplane = True

# Sketch on YZ plane
sketch12 = doc.addObject("Sketcher::SketchObject", "Sketch011")
body.addObject(sketch12)
sketch12.AttachmentSupport = (doc.YZ_Plane, [""])
sketch12.MapMode = "FlatFace"
sketch12.AttachmentOffset = App.Placement(Vector(0, 0, 2.5), App.Rotation())
sketch12.addGeometry(Part.Circle(Vector(-6.8, 17.3, 0), Vector(0, 0, 1), 1.5), False)
sketch12.addGeometry(Part.Circle(Vector(-12.1, 34.4, 0), Vector(0, 0, 1), 1.5), False)
sketch12.addConstraint(Sketcher.Constraint("Equal", 0, 1))
sketch12.addConstraint(Sketcher.Constraint("Diameter", 0, 3.0))
sketch12.addConstraint(Sketcher.Constraint("DistanceY", -1, 1, 0, 3, 17.268588))
sketch12.addConstraint(Sketcher.Constraint("DistanceX", 1, 3, 0, 3, 5.255028))
sketch12.addConstraint(Sketcher.Constraint("DistanceX", 0, 3, -1, 1, 6.796304))
sketch12.addConstraint(Sketcher.Constraint("DistanceY", -1, 1, 1, 3, 34.415724))
pocket4 = doc.addObject("PartDesign::Pocket", "Pocket003")
body.addObject(pocket4)
pocket4.Profile = sketch12
pocket4.Type = "ThroughAll"

# Sketch on YZ plane
sketch13 = doc.addObject("Sketcher::SketchObject", "Sketch012")
body.addObject(sketch13)
sketch13.AttachmentSupport = (doc.YZ_Plane, [""])
sketch13.MapMode = "FlatFace"
sketch13.AttachmentOffset = App.Placement(Vector(0, 0, -0.8), App.Rotation())
sketch13.addGeometry(Part.LineSegment(Vector(-9.15, 27.7, 0), Vector(-10.51, 29.16, 0)), False)
sketch13.addGeometry(Part.LineSegment(Vector(-10.51, 29.16, 0), Vector(-10.87, 28.82, 0)), False)
sketch13.addGeometry(Part.LineSegment(Vector(-10.87, 28.82, 0), Vector(-9.51, 27.35, 0)), False)
sketch13.addGeometry(Part.LineSegment(Vector(-9.51, 27.35, 0), Vector(-9.15, 27.7, 0)), False)
sketch13.addConstraint(Sketcher.Constraint("Coincident", 0, 2, 1, 1))
sketch13.addConstraint(Sketcher.Constraint("Coincident", 1, 2, 2, 1))
sketch13.addConstraint(Sketcher.Constraint("Coincident", 2, 2, 3, 1))
sketch13.addConstraint(Sketcher.Constraint("Coincident", 3, 2, 0, 1))
sketch13.addConstraint(Sketcher.Constraint("Perpendicular", 0, 1))
sketch13.addConstraint(Sketcher.Constraint("Perpendicular", 1, 2))
sketch13.addConstraint(Sketcher.Constraint("Perpendicular", 2, 3))
sketch13.addConstraint(Sketcher.Constraint("Angle", 0, Q("133.000014 deg")))
sketch13.addConstraint(Sketcher.Constraint("Distance", 0, 2.0))
sketch13.addConstraint(Sketcher.Constraint("Distance", 1, 0.5))
sketch13.addConstraint(Sketcher.Constraint("DistanceX", 0, 2, -1, 1, 10.509201))
sketch13.addConstraint(Sketcher.Constraint("DistanceY", -1, 1, 0, 2, 29.158321))
pad9 = doc.addObject("PartDesign::Pad", "Pad008")
body.addObject(pad9)
pad9.Profile = sketch13
pad9.Length = 0.5

doc.recompute()
